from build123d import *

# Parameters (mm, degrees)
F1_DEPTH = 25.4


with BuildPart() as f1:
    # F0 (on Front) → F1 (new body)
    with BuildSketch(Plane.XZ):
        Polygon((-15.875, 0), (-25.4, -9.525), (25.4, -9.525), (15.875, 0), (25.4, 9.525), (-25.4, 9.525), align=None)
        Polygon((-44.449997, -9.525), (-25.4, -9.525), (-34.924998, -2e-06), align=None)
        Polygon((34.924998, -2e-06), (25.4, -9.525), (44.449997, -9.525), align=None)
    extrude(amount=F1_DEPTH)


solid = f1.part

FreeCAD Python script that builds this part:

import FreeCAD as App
import Part
import Sketcher
Q = App.Units.Quantity

doc = App.newDocument("Part")
body = doc.addObject("PartDesign::Body", "Body")
body.AllowCompound = True

sketch1 = doc.addObject("Sketcher::SketchObject", "Sketch")
body.addObject(sketch1)
sketch1.AttachmentSupport = (doc.XZ_Plane, [""])
sketch1.MapMode = "FlatFace"
sketch1.addGeometry(Part.LineSegment(App.Vector(-15.875, 0, 0), App.Vector(-25.4, -9.525, 0)), False)
sketch1.addGeometry(Part.LineSegment(App.Vector(-25.4, -9.525, 0), App.Vector(25.4, -9.525, 0)), False)
sketch1.addGeometry(Part.LineSegment(App.Vector(25.4, -9.525, 0), App.Vector(15.875, 0, 0)), False)
sketch1.addGeometry(Part.LineSegment(App.Vector(15.875, 0, 0), App.Vector(25.4, 9.525, 0)), False)
sketch1.addGeometry(Part.LineSegment(App.Vector(25.4, 9.525, 0), App.Vector(-25.4, 9.525, 0)), False)
sketch1.addGeometry(Part.LineSegment(App.Vector(-25.4, 9.525, 0), App.Vector(-15.875, 0, 0)), False)
sketch1.addGeometry(Part.LineSegment(App.Vector(-44.449997, -9.525, 0), App.Vector(-25.4, -9.525, 0)), False)
sketch1.addGeometry(Part.LineSegment(App.Vector(-25.4, -9.525, 0), App.Vector(-34.924998, -0.000002, 0)), False)
sketch1.addGeometry(Part.LineSegment(App.Vector(-34.924998, -0.000002, 0), App.Vector(-44.449997, -9.525, 0)), False)
sketch1.addGeometry(Part.LineSegment(App.Vector(34.924998, -0.000002, 0), App.Vector(25.4, -9.525, 0)), False)
sketch1.addGeometry(Part.LineSegment(App.Vector(25.4, -9.525, 0), App.Vector(44.449997, -9.525, 0)), False)
sketch1.addGeometry(Part.LineSegment(App.Vector(44.449997, -9.525, 0), App.Vector(34.924998, -0.000002, 0)), False)
sketch1.addConstraint(Sketcher.Constraint("Coincident", 0, 2, 1, 1))
sketch1.addConstraint(Sketcher.Constraint("Coincident", 1, 2, 2, 1))
sketch1.addConstraint(Sketcher.Constraint("Coincident", 2, 2, 3, 1))
sketch1.addConstraint(Sketcher.Constraint("Coincident", 3, 2, 4, 1))
sketch1.addConstraint(Sketcher.Constraint("Coincident", 4, 2, 5, 1))
sketch1.addConstraint(Sketcher.Constraint("Coincident", 5, 2, 0, 1))
sketch1.addConstraint(Sketcher.Constraint("Coincident", 6, 2, 7, 1))
sketch1.addConstraint(Sketcher.Constraint("Coincident", 7, 2, 8, 1))
sketch1.addConstraint(Sketcher.Constraint("Coincident", 8, 2, 6, 1))
sketch1.addConstraint(Sketcher.Constraint("Coincident", 9, 2, 10, 1))
sketch1.addConstraint(Sketcher.Constraint("Coincident", 10, 2, 11, 1))
sketch1.addConstraint(Sketcher.Constraint("Coincident", 11, 2, 9, 1))
sketch1.addConstraint(Sketcher.Constraint("Horizontal", 1))
sketch1.addConstraint(Sketcher.Constraint("Horizontal", 4))
sketch1.addConstraint(Sketcher.Constraint("Horizontal", 6))
sketch1.addConstraint(Sketcher.Constraint("Horizontal", 10))
sketch1.addConstraint(Sketcher.Constraint("Coincident", 6, 2, 0, 2))
sketch1.addConstraint(Sketcher.Constraint("Coincident", 9, 2, 1, 2))
sketch1.addConstraint(Sketcher.Constraint("Symmetric", 0, 2, 3, 2, -1, 1))
sketch1.addConstraint(Sketcher.Constraint("Symmetric", 2, 2, 5, 2, -1, 1))
sketch1.addConstraint(Sketcher.Constraint("Symmetric", 7, 2, 11, 2, -1, 1))
sketch1.addConstraint(Sketcher.Constraint("PointOnObject", 2, 2, -1))
sketch1.addConstraint(Sketcher.Constraint("Perpendicular", 0, 2))
sketch1.addConstraint(Sketcher.Constraint("Perpendicular", 3, 5))
sketch1.addConstraint(Sketcher.Constraint("Parallel", 5, 7))
sketch1.addConstraint(Sketcher.Constraint("Perpendicular", 7, 8))
sketch1.addConstraint(Sketcher.Constraint("Parallel", 8, 9))
sketch1.addConstraint(Sketcher.Constraint("Perpendicular", 9, 11))
sketch1.addConstraint(Sketcher.Constraint("Vertical", 1, 2, 3, 2))
sketch1.addConstraint(Sketcher.Constraint("DistanceX", 1, 1, 1, 2, Q("2 in")))
sketch1.addConstraint(Sketcher.Constraint("DistanceX", 6, 1, 6, 2, Q("0.7499999 in")))
pad1 = doc.addObject("PartDesign::Pad", "Pad")
body.addObject(pad1)
pad1.Profile = sketch1
pad1.Length = Q("1 in")

doc.recompute()
